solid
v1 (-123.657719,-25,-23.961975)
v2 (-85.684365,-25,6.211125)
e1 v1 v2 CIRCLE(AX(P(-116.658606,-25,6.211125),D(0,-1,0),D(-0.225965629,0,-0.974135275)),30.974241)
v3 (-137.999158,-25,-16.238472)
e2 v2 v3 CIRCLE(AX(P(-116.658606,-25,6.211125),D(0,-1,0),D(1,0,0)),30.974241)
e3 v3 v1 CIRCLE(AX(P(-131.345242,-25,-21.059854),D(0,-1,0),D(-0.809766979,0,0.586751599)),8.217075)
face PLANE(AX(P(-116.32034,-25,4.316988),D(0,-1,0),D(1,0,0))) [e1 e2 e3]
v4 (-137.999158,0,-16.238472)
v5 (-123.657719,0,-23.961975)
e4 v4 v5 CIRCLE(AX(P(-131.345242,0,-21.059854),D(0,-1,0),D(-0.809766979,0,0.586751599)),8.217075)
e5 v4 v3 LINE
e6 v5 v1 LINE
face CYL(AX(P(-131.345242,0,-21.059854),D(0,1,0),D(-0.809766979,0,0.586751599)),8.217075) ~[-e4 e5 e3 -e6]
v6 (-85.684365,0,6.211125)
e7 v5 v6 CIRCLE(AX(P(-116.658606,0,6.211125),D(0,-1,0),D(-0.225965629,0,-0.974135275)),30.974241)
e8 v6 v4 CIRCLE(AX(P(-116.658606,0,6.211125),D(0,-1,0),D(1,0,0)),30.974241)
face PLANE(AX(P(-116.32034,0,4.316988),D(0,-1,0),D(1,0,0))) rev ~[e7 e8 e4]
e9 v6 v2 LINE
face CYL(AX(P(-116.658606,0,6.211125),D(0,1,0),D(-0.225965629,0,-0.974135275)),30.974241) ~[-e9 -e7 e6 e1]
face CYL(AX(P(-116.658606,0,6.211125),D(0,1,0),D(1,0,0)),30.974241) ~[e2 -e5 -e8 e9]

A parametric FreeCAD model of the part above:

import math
import FreeCAD as App
import Part
import Sketcher
from FreeCAD import Vector
Q = App.Units.Quantity

doc = App.newDocument("Part")
body = doc.addObject("PartDesign::Body", "Body")

sketch1 = doc.addObject("Sketcher::SketchObject", "Sketch")
body.addObject(sketch1)
sketch1.AttachmentSupport = (doc.XZ_Plane, [""])
sketch1.MapMode = "FlatFace"
sketch1.addGeometry([
    Part.ArcOfCircle(Part.Circle(Vector(-117, 6, 0), Vector(0, 0, 1), 31), math.radians(-103), math.radians(0)),
    Part.ArcOfCircle(Part.Circle(Vector(-117, 6, 0), Vector(0, 0, 1), 31), math.radians(0), math.radians(226)),
    Part.ArcOfCircle(Part.Circle(Vector(-131, -21, 0), Vector(0, 0, 1), 8), math.radians(144), math.radians(339)),
], False)
sketch1.addConstraint([
    Sketcher.Constraint("Tangent", 0, 2, 1, 1),
    Sketcher.Constraint("Coincident", 1, 2, 2, 1),
    Sketcher.Constraint("Coincident", 2, 2, 0, 1),
    Sketcher.Constraint("Equal", 0, 1),
    Sketcher.Constraint("Horizontal", 1, 3, 0, 2),
    Sketcher.Constraint("Radius", 0, Q("30.974241 mm")),
    Sketcher.Constraint("Radius", 2, Q("8.217075 mm")),
    Sketcher.Constraint("DistanceY", 2, 2, 0, 3, Q("30.173101 mm")),
    Sketcher.Constraint("DistanceX", 2, 2, -1, 1, Q("123.657719 mm")),
    Sketcher.Constraint("DistanceY", 2, 3, 0, 3, Q("27.270979 mm")),
    Sketcher.Constraint("DistanceY", -1, 1, 0, 3, Q("6.211125 mm")),
])
pad1 = doc.addObject("PartDesign::Pad", "Pad")
body.addObject(pad1)
pad1.Profile = sketch1
pad1.Length = 25

doc.recompute()
